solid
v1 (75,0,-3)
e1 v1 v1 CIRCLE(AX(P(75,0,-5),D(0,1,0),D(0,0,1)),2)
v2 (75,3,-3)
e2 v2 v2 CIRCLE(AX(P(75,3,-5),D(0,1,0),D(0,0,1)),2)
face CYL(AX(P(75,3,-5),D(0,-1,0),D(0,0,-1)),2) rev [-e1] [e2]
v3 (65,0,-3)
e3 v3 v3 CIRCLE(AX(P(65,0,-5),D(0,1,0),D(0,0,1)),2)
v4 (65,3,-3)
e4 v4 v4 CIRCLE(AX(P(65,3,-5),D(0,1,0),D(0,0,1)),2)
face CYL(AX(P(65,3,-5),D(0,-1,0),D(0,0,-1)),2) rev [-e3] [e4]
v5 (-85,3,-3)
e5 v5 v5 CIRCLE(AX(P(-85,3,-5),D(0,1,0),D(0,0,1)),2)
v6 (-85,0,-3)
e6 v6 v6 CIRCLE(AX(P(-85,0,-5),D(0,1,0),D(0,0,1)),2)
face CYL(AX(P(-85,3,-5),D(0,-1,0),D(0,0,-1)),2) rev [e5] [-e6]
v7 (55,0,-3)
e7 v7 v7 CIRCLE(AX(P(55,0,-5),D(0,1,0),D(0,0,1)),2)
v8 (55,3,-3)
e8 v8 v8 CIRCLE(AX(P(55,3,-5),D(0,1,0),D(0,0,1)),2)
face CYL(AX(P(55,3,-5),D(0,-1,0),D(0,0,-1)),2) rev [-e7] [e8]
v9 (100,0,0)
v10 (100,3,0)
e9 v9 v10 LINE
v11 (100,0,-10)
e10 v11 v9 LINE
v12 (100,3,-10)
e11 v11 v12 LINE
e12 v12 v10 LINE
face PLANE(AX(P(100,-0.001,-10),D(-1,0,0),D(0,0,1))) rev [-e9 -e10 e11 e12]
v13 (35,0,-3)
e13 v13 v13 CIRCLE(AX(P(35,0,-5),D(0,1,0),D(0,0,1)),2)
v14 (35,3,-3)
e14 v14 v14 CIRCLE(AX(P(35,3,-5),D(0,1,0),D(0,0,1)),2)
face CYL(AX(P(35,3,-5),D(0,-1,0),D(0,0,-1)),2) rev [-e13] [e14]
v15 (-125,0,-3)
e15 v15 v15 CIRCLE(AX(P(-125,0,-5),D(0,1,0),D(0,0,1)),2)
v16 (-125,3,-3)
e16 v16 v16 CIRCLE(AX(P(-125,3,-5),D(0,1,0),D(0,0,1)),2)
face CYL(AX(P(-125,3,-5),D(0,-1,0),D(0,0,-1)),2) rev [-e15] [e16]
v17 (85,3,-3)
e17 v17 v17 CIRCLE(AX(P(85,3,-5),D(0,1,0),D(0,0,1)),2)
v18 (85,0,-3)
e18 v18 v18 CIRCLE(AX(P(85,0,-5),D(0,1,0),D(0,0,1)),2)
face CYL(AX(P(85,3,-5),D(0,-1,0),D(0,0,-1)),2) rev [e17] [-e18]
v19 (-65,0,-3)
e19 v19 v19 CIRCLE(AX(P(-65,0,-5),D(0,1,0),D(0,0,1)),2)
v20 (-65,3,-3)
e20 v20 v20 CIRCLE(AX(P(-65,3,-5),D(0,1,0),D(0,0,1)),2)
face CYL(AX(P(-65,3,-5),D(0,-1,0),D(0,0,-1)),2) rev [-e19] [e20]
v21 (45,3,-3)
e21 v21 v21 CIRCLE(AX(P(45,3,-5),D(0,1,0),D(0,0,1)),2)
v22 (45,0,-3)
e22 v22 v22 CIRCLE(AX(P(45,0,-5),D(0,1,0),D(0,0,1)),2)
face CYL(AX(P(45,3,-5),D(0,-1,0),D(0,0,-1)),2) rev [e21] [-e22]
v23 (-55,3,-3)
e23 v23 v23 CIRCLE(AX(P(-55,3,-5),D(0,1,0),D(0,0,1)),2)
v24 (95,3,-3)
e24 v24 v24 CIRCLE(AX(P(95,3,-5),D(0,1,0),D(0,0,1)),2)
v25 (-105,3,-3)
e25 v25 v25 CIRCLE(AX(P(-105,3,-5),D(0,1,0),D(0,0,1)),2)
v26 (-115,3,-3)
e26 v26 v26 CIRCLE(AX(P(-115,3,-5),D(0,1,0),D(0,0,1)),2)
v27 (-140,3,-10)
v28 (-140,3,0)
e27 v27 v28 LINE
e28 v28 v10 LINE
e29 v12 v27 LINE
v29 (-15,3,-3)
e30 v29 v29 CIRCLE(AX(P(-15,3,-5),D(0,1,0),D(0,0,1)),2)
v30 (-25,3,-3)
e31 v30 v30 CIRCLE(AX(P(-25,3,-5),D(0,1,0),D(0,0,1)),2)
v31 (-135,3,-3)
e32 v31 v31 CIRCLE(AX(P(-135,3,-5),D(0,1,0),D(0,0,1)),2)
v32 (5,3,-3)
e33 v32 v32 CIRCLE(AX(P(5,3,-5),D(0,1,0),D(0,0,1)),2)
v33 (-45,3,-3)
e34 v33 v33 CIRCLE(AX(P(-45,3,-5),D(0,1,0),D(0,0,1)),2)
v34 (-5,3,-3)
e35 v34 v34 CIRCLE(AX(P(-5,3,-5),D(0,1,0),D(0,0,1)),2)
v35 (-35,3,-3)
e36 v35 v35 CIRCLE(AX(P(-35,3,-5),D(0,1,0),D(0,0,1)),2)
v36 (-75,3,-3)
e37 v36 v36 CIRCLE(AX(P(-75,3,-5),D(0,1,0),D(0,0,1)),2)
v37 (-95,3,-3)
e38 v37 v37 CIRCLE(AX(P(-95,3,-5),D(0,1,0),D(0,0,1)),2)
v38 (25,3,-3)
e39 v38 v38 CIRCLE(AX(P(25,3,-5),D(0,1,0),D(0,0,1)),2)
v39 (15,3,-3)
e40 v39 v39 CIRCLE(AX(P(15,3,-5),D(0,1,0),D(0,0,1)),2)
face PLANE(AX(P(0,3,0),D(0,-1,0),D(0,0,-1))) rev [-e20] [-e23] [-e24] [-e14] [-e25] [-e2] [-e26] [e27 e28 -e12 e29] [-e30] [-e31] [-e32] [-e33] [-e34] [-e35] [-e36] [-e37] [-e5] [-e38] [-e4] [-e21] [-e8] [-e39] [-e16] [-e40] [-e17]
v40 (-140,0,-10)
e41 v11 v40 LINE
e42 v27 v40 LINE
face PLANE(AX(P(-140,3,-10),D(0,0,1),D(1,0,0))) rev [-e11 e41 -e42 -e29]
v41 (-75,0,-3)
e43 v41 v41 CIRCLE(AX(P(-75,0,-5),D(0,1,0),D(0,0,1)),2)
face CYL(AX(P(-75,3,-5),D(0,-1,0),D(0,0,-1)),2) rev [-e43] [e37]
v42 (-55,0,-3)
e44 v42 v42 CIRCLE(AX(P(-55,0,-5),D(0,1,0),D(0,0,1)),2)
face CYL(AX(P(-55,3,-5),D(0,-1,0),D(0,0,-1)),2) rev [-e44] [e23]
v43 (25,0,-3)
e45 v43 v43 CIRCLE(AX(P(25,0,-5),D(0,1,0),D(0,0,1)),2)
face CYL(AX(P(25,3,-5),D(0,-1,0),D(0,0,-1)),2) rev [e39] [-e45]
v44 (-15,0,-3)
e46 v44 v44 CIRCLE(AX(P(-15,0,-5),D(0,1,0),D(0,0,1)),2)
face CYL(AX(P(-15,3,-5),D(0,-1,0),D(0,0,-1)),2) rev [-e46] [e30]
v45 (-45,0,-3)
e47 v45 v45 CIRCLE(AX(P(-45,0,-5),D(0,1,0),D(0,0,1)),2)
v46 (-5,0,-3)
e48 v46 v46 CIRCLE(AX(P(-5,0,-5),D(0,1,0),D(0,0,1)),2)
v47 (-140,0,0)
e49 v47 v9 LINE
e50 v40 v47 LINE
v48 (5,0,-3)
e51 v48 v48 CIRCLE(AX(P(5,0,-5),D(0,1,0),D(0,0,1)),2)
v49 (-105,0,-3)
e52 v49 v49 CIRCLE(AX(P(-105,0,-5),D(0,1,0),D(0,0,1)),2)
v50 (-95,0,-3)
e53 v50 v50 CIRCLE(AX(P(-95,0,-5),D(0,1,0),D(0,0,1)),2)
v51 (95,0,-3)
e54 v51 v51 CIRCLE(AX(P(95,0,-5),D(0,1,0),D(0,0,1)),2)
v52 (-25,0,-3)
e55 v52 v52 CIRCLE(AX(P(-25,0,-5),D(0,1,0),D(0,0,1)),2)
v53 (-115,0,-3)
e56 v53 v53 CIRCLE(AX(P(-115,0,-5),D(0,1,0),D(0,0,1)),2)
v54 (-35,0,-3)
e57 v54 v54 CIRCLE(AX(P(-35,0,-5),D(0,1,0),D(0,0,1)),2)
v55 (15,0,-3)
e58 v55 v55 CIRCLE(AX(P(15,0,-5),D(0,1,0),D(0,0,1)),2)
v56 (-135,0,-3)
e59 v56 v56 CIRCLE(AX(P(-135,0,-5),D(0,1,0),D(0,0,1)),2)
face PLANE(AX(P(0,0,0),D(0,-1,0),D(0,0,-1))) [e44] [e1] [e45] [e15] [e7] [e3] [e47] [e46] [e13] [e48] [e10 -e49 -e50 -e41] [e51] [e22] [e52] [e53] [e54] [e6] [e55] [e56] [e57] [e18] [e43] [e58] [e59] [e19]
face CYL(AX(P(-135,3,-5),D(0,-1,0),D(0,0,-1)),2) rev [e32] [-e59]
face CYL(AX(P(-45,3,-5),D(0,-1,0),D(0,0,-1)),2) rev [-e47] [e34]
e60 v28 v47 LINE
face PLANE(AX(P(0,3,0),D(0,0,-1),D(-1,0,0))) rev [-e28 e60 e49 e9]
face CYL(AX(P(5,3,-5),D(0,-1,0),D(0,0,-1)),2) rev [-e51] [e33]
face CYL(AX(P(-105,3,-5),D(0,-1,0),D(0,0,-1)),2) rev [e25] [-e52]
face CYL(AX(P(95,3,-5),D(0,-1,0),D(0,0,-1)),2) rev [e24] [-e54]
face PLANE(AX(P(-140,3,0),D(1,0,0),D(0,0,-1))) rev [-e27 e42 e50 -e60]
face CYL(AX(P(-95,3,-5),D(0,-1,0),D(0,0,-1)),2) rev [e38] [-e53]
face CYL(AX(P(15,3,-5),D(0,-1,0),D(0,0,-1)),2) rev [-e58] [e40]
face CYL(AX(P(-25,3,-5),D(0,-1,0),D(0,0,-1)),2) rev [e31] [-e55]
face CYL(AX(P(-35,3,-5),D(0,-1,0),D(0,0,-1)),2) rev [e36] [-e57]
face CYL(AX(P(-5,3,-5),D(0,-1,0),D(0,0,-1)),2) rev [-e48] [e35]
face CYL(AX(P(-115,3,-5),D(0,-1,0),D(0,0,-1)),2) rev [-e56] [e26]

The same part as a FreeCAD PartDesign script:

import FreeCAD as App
import Part
import Sketcher


def add_polygon(sketch, points):
    """Adds a closed chain of lines whose ends are joined by coincident constraints."""
    first, n = sketch.GeometryCount, len(points)
    for a, b in zip(points, points[1:] + points[:1]):
        sketch.addGeometry(Part.LineSegment(App.Vector(*a, 0), App.Vector(*b, 0)), False)
    for i in range(n):
        sketch.addConstraint(Sketcher.Constraint("Coincident", first + i, 2, first + (i + 1) % n, 1))

doc = App.newDocument("Part")
body = doc.addObject("PartDesign::Body", "Body")

sketch1 = body.newObject("Sketcher::SketchObject", "Sketch")
sketch1.AttachmentSupport = (doc.getObject("XZ_Plane"), [""])
sketch1.MapMode = "FlatFace"
add_polygon(sketch1, [(140, 0), (140, -10), (-140, -10), (-140, 0)])
sketch1.addGeometry(Part.Circle(App.Vector(-135, -5, 0), App.Vector(0, 0, 1), 2), False)
sketch1.addGeometry(Part.Circle(App.Vector(-125, -5, 0), App.Vector(0, 0, 1), 2), False)
sketch1.addGeometry(Part.Circle(App.Vector(-115, -5, 0), App.Vector(0, 0, 1), 2), False)
sketch1.addGeometry(Part.Circle(App.Vector(-105, -5, 0), App.Vector(0, 0, 1), 2), False)
sketch1.addGeometry(Part.Circle(App.Vector(-95, -5, 0), App.Vector(0, 0, 1), 2), False)
sketch1.addGeometry(Part.Circle(App.Vector(-85, -5, 0), App.Vector(0, 0, 1), 2), False)
sketch1.addGeometry(Part.Circle(App.Vector(-75, -5, 0), App.Vector(0, 0, 1), 2), False)
sketch1.addGeometry(Part.Circle(App.Vector(-65, -5, 0), App.Vector(0, 0, 1), 2), False)
sketch1.addGeometry(Part.Circle(App.Vector(-55, -5, 0), App.Vector(0, 0, 1), 2), False)
sketch1.addGeometry(Part.Circle(App.Vector(-45, -5, 0), App.Vector(0, 0, 1), 2), False)
sketch1.addGeometry(Part.Circle(App.Vector(-35, -5, 0), App.Vector(0, 0, 1), 2), False)
sketch1.addGeometry(Part.Circle(App.Vector(-25, -5, 0), App.Vector(0, 0, 1), 2), False)
sketch1.addGeometry(Part.Circle(App.Vector(-15, -5, 0), App.Vector(0, 0, 1), 2), False)
sketch1.addGeometry(Part.Circle(App.Vector(-5, -5, 0), App.Vector(0, 0, 1), 2), False)
sketch1.addGeometry(Part.Circle(App.Vector(5, -5, 0), App.Vector(0, 0, 1), 2), False)
sketch1.addGeometry(Part.Circle(App.Vector(15, -5, 0), App.Vector(0, 0, 1), 2), False)
sketch1.addGeometry(Part.Circle(App.Vector(25, -5, 0), App.Vector(0, 0, 1), 2), False)
sketch1.addGeometry(Part.Circle(App.Vector(35, -5, 0), App.Vector(0, 0, 1), 2), False)
sketch1.addGeometry(Part.Circle(App.Vector(45, -5, 0), App.Vector(0, 0, 1), 2), False)
sketch1.addGeometry(Part.Circle(App.Vector(55, -5, 0), App.Vector(0, 0, 1), 2), False)
sketch1.addGeometry(Part.Circle(App.Vector(65, -5, 0), App.Vector(0, 0, 1), 2), False)
sketch1.addGeometry(Part.Circle(App.Vector(75, -5, 0), App.Vector(0, 0, 1), 2), False)
sketch1.addGeometry(Part.Circle(App.Vector(85, -5, 0), App.Vector(0, 0, 1), 2), False)
sketch1.addGeometry(Part.Circle(App.Vector(95, -5, 0), App.Vector(0, 0, 1), 2), False)
sketch1.addGeometry(Part.Circle(App.Vector(105, -5, 0), App.Vector(0, 0, 1), 2), False)
sketch1.addGeometry(Part.Circle(App.Vector(115, -5, 0), App.Vector(0, 0, 1), 2), False)
sketch1.addGeometry(Part.Circle(App.Vector(125, -5, 0), App.Vector(0, 0, 1), 2), False)
sketch1.addGeometry(Part.Circle(App.Vector(135, -5, 0), App.Vector(0, 0, 1), 2), False)
sketch1.addConstraint([
    Sketcher.Constraint("Vertical", 0),
    Sketcher.Constraint("Horizontal", 1),
    Sketcher.Constraint("Vertical", 2),
    Sketcher.Constraint("Horizontal", 3),
    Sketcher.Constraint("Equal", 4, 5),
    Sketcher.Constraint("Equal", 5, 6),
    Sketcher.Constraint("Equal", 6, 7),
    Sketcher.Constraint("Equal", 7, 8),
    Sketcher.Constraint("Equal", 8, 9),
    Sketcher.Constraint("Equal", 9, 10),
    Sketcher.Constraint("Equal", 10, 11),
    Sketcher.Constraint("Equal", 11, 12),
    Sketcher.Constraint("Equal", 12, 13),
    Sketcher.Constraint("Equal", 13, 14),
    Sketcher.Constraint("Equal", 14, 15),
    Sketcher.Constraint("Equal", 15, 16),
    Sketcher.Constraint("Equal", 16, 17),
    Sketcher.Constraint("Equal", 17, 18),
    Sketcher.Constraint("Equal", 18, 19),
    Sketcher.Constraint("Equal", 19, 20),
    Sketcher.Constraint("Equal", 20, 21),
    Sketcher.Constraint("Equal", 21, 22),
    Sketcher.Constraint("Equal", 22, 23),
    Sketcher.Constraint("Equal", 23, 24),
    Sketcher.Constraint("Equal", 24, 25),
    Sketcher.Constraint("Equal", 25, 26),
    Sketcher.Constraint("Equal", 26, 27),
    Sketcher.Constraint("Equal", 27, 28),
    Sketcher.Constraint("Equal", 28, 29),
    Sketcher.Constraint("Equal", 29, 30),
    Sketcher.Constraint("Equal", 30, 31),
    Sketcher.Constraint("Symmetric", 2, 2, 3, 2, -1, 1),
    Sketcher.Constraint("Symmetric", 17, 3, 18, 3, -2),
    Sketcher.Constraint("Symmetric", 16, 3, 19, 3, -2),
    Sketcher.Constraint("Symmetric", 15, 3, 20, 3, -2),
    Sketcher.Constraint("Symmetric", 14, 3, 21, 3, -2),
    Sketcher.Constraint("Symmetric", 13, 3, 22, 3, -2),
    Sketcher.Constraint("Symmetric", 12, 3, 23, 3, -2),
    Sketcher.Constraint("Symmetric", 11, 3, 24, 3, -2),
    Sketcher.Constraint("Symmetric", 10, 3, 25, 3, -2),
    Sketcher.Constraint("Symmetric", 9, 3, 26, 3, -2),
    Sketcher.Constraint("Symmetric", 8, 3, 27, 3, -2),
    Sketcher.Constraint("Symmetric", 7, 3, 28, 3, -2),
    Sketcher.Constraint("Symmetric", 6, 3, 29, 3, -2),
    Sketcher.Constraint("Symmetric", 5, 3, 30, 3, -2),
    Sketcher.Constraint("Symmetric", 4, 3, 31, 3, -2),
    Sketcher.Constraint("Horizontal", 4, 3, 5, 3),
    Sketcher.Constraint("Horizontal", 5, 3, 6, 3),
    Sketcher.Constraint("Horizontal", 6, 3, 7, 3),
    Sketcher.Constraint("Horizontal", 7, 3, 8, 3),
    Sketcher.Constraint("Horizontal", 8, 3, 9, 3),
    Sketcher.Constraint("Horizontal", 9, 3, 10, 3),
    Sketcher.Constraint("Horizontal", 10, 3, 11, 3),
    Sketcher.Constraint("Horizontal", 11, 3, 12, 3),
    Sketcher.Constraint("Horizontal", 12, 3, 13, 3),
    Sketcher.Constraint("Horizontal", 13, 3, 14, 3),
    Sketcher.Constraint("Horizontal", 14, 3, 15, 3),
    Sketcher.Constraint("Horizontal", 15, 3, 16, 3),
    Sketcher.Constraint("Horizontal", 16, 3, 17, 3),
    Sketcher.Constraint("Diameter", 4, 4.0),
    Sketcher.Constraint("DistanceX", 1, 2, 1, 1, 280.0),
    Sketcher.Constraint("DistanceY", 0, 2, 0, 1, 10.0),
    Sketcher.Constraint("DistanceX", 4, 3, -1, 1, 135.0),
    Sketcher.Constraint("DistanceY", 4, 3, -1, 1, 5.0),
    Sketcher.Constraint("DistanceX", 5, 3, -1, 1, 125.0),
    Sketcher.Constraint("DistanceX", 6, 3, -1, 1, 115.0),
    Sketcher.Constraint("DistanceX", 7, 3, -1, 1, 105.0),
    Sketcher.Constraint("DistanceX", 8, 3, -1, 1, 95.0),
    Sketcher.Constraint("DistanceX", 9, 3, -1, 1, 85.0),
    Sketcher.Constraint("DistanceX", 10, 3, -1, 1, 75.0),
    Sketcher.Constraint("DistanceX", 11, 3, -1, 1, 65.0),
    Sketcher.Constraint("DistanceX", 12, 3, -1, 1, 55.0),
    Sketcher.Constraint("DistanceX", 13, 3, -1, 1, 45.0),
    Sketcher.Constraint("DistanceX", 14, 3, -1, 1, 35.0),
    Sketcher.Constraint("DistanceX", 15, 3, -1, 1, 25.0),
    Sketcher.Constraint("DistanceX", 16, 3, -1, 1, 15.0),
    Sketcher.Constraint("DistanceX", 17, 3, -1, 1, 5.0),
])
pad1 = body.newObject("PartDesign::Pad", "Pad")
pad1.Profile = sketch1
pad1.Length = 3
pad1.Reversed = True

sketch2 = body.newObject("Sketcher::SketchObject", "Sketch001")
sketch2.AttachmentSupport = (doc.getObject("XZ_Plane"), [""])
sketch2.MapMode = "FlatFace"
sketch2.AttachmentOffset = App.Placement(App.Vector(0, 0, -3), App.Rotation())
add_polygon(sketch2, [(100, -10), (100, 0), (140, 0), (140, -10)])
sketch2.addConstraint([
    Sketcher.Constraint("Vertical", 0),
    Sketcher.Constraint("Horizontal", 1),
    Sketcher.Constraint("Vertical", 2),
    Sketcher.Constraint("Horizontal", 3),
    Sketcher.Constraint("PointOnObject", 0, 2, -1),
    Sketcher.Constraint("DistanceX", 1, 1, 1, 2, 40.0),
    Sketcher.Constraint("DistanceY", 0, 1, 0, 2, 10.0),
    Sketcher.Constraint("DistanceX", -1, 1, 0, 2, 100.0),
])
pocket1 = body.newObject("PartDesign::Pocket", "Pocket")
pocket1.Profile = sketch2
pocket1.Type = "UpToFirst"
pocket1.Reversed = True

doc.recompute()
